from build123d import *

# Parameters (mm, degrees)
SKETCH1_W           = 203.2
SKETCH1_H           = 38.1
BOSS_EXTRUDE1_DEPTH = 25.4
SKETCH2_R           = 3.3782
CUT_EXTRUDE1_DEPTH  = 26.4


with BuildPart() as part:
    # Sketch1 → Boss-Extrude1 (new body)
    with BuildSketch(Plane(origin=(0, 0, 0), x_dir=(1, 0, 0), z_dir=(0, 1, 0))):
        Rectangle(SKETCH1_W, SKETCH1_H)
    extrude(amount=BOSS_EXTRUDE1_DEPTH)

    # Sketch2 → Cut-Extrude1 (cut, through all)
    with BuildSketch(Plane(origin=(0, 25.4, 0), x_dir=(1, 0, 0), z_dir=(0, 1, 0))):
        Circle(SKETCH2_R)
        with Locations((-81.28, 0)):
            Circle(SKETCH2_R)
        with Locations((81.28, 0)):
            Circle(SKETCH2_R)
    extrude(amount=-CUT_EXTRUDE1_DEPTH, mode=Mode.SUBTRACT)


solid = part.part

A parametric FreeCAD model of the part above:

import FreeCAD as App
import Part
import Sketcher
from FreeCAD import Vector
Q = App.Units.Quantity

doc = App.newDocument("Part")
params = doc.addObject("Spreadsheet::Sheet", "Params")
for row, (alias, value) in enumerate([
    ("sketch1_width", "8 in"),
    ("sketch1_height", "1.5 in"),
    ("pad1_length", "1 in"),
    ("sketch2_diameter", "0.266 in"),
], start=1):
    params.set(f"A{row}", alias)
    params.set(f"B{row}", "=" + value)
    params.setAlias(f"B{row}", alias)

body = doc.addObject("PartDesign::Body", "Body")

sketch1 = doc.addObject("Sketcher::SketchObject", "Sketch")
body.addObject(sketch1)
sketch1.AttachmentSupport = (doc.XZ_Plane, [""])
sketch1.MapMode = "FlatFace"
sketch1.addGeometry([
    Part.LineSegment(Vector(-102, -19, 0), Vector(-102, 19, 0)),
    Part.LineSegment(Vector(-102, 19, 0), Vector(102, 19, 0)),
    Part.LineSegment(Vector(102, 19, 0), Vector(102, -19, 0)),
    Part.LineSegment(Vector(102, -19, 0), Vector(-102, -19, 0)),
], False)
sketch1.addConstraint([
    Sketcher.Constraint("Coincident", 0, 2, 1, 1),
    Sketcher.Constraint("Coincident", 1, 2, 2, 1),
    Sketcher.Constraint("Coincident", 2, 2, 3, 1),
    Sketcher.Constraint("Coincident", 3, 2, 0, 1),
    Sketcher.Constraint("Vertical", 0),
    Sketcher.Constraint("Horizontal", 1),
    Sketcher.Constraint("Vertical", 2),
    Sketcher.Constraint("Horizontal", 3),
    Sketcher.Constraint("Symmetric", 0, 2, 2, 2, -1, 1),
    Sketcher.Constraint("DistanceX", 1, 1, 1, 2, Q("8 in")),
    Sketcher.Constraint("DistanceY", 0, 1, 0, 2, Q("1.5 in")),
])
sketch1.setExpression("Constraints[9]", "Params.sketch1_width")
sketch1.setExpression("Constraints[10]", "Params.sketch1_height")
pad1 = doc.addObject("PartDesign::Pad", "Pad")
body.addObject(pad1)
pad1.Profile = sketch1
pad1.setExpression("Length", "Params.pad1_length")
pad1.Reversed = True

sketch2 = doc.addObject("Sketcher::SketchObject", "Sketch001")
body.addObject(sketch2)
sketch2.AttachmentSupport = (doc.XZ_Plane, [""])
sketch2.MapMode = "FlatFace"
sketch2.AttachmentOffset = App.Placement(Vector(0, 0, -1 * 25.4), App.Rotation())
sketch2.addGeometry([
    Part.Circle(Vector(0, 0, 0), Vector(0, 0, 1), 3.4),
    Part.Circle(Vector(-81.3, 0, 0), Vector(0, 0, 1), 3.4),
    Part.Circle(Vector(81.3, 0, 0), Vector(0, 0, 1), 3.4),
], False)
sketch2.addConstraint([
    Sketcher.Constraint("Coincident", 0, 3, -1, 1),
    Sketcher.Constraint("Equal", 0, 1),
    Sketcher.Constraint("Equal", 1, 2),
    Sketcher.Constraint("Symmetric", 1, 3, 2, 3, -1, 1),
    Sketcher.Constraint("PointOnObject", 1, 3, -1),
    Sketcher.Constraint("Diameter", 0, Q("0.266 in")),
    Sketcher.Constraint("DistanceX", 1, 3, -1, 1, Q("3.2 in")),
])
sketch2.setExpression("Constraints[5]", "Params.sketch2_diameter")
pocket1 = doc.addObject("PartDesign::Pocket", "Pocket")
body.addObject(pocket1)
pocket1.Profile = sketch2
pocket1.Type = "ThroughAll"
pocket1.Reversed = True

doc.recompute()
